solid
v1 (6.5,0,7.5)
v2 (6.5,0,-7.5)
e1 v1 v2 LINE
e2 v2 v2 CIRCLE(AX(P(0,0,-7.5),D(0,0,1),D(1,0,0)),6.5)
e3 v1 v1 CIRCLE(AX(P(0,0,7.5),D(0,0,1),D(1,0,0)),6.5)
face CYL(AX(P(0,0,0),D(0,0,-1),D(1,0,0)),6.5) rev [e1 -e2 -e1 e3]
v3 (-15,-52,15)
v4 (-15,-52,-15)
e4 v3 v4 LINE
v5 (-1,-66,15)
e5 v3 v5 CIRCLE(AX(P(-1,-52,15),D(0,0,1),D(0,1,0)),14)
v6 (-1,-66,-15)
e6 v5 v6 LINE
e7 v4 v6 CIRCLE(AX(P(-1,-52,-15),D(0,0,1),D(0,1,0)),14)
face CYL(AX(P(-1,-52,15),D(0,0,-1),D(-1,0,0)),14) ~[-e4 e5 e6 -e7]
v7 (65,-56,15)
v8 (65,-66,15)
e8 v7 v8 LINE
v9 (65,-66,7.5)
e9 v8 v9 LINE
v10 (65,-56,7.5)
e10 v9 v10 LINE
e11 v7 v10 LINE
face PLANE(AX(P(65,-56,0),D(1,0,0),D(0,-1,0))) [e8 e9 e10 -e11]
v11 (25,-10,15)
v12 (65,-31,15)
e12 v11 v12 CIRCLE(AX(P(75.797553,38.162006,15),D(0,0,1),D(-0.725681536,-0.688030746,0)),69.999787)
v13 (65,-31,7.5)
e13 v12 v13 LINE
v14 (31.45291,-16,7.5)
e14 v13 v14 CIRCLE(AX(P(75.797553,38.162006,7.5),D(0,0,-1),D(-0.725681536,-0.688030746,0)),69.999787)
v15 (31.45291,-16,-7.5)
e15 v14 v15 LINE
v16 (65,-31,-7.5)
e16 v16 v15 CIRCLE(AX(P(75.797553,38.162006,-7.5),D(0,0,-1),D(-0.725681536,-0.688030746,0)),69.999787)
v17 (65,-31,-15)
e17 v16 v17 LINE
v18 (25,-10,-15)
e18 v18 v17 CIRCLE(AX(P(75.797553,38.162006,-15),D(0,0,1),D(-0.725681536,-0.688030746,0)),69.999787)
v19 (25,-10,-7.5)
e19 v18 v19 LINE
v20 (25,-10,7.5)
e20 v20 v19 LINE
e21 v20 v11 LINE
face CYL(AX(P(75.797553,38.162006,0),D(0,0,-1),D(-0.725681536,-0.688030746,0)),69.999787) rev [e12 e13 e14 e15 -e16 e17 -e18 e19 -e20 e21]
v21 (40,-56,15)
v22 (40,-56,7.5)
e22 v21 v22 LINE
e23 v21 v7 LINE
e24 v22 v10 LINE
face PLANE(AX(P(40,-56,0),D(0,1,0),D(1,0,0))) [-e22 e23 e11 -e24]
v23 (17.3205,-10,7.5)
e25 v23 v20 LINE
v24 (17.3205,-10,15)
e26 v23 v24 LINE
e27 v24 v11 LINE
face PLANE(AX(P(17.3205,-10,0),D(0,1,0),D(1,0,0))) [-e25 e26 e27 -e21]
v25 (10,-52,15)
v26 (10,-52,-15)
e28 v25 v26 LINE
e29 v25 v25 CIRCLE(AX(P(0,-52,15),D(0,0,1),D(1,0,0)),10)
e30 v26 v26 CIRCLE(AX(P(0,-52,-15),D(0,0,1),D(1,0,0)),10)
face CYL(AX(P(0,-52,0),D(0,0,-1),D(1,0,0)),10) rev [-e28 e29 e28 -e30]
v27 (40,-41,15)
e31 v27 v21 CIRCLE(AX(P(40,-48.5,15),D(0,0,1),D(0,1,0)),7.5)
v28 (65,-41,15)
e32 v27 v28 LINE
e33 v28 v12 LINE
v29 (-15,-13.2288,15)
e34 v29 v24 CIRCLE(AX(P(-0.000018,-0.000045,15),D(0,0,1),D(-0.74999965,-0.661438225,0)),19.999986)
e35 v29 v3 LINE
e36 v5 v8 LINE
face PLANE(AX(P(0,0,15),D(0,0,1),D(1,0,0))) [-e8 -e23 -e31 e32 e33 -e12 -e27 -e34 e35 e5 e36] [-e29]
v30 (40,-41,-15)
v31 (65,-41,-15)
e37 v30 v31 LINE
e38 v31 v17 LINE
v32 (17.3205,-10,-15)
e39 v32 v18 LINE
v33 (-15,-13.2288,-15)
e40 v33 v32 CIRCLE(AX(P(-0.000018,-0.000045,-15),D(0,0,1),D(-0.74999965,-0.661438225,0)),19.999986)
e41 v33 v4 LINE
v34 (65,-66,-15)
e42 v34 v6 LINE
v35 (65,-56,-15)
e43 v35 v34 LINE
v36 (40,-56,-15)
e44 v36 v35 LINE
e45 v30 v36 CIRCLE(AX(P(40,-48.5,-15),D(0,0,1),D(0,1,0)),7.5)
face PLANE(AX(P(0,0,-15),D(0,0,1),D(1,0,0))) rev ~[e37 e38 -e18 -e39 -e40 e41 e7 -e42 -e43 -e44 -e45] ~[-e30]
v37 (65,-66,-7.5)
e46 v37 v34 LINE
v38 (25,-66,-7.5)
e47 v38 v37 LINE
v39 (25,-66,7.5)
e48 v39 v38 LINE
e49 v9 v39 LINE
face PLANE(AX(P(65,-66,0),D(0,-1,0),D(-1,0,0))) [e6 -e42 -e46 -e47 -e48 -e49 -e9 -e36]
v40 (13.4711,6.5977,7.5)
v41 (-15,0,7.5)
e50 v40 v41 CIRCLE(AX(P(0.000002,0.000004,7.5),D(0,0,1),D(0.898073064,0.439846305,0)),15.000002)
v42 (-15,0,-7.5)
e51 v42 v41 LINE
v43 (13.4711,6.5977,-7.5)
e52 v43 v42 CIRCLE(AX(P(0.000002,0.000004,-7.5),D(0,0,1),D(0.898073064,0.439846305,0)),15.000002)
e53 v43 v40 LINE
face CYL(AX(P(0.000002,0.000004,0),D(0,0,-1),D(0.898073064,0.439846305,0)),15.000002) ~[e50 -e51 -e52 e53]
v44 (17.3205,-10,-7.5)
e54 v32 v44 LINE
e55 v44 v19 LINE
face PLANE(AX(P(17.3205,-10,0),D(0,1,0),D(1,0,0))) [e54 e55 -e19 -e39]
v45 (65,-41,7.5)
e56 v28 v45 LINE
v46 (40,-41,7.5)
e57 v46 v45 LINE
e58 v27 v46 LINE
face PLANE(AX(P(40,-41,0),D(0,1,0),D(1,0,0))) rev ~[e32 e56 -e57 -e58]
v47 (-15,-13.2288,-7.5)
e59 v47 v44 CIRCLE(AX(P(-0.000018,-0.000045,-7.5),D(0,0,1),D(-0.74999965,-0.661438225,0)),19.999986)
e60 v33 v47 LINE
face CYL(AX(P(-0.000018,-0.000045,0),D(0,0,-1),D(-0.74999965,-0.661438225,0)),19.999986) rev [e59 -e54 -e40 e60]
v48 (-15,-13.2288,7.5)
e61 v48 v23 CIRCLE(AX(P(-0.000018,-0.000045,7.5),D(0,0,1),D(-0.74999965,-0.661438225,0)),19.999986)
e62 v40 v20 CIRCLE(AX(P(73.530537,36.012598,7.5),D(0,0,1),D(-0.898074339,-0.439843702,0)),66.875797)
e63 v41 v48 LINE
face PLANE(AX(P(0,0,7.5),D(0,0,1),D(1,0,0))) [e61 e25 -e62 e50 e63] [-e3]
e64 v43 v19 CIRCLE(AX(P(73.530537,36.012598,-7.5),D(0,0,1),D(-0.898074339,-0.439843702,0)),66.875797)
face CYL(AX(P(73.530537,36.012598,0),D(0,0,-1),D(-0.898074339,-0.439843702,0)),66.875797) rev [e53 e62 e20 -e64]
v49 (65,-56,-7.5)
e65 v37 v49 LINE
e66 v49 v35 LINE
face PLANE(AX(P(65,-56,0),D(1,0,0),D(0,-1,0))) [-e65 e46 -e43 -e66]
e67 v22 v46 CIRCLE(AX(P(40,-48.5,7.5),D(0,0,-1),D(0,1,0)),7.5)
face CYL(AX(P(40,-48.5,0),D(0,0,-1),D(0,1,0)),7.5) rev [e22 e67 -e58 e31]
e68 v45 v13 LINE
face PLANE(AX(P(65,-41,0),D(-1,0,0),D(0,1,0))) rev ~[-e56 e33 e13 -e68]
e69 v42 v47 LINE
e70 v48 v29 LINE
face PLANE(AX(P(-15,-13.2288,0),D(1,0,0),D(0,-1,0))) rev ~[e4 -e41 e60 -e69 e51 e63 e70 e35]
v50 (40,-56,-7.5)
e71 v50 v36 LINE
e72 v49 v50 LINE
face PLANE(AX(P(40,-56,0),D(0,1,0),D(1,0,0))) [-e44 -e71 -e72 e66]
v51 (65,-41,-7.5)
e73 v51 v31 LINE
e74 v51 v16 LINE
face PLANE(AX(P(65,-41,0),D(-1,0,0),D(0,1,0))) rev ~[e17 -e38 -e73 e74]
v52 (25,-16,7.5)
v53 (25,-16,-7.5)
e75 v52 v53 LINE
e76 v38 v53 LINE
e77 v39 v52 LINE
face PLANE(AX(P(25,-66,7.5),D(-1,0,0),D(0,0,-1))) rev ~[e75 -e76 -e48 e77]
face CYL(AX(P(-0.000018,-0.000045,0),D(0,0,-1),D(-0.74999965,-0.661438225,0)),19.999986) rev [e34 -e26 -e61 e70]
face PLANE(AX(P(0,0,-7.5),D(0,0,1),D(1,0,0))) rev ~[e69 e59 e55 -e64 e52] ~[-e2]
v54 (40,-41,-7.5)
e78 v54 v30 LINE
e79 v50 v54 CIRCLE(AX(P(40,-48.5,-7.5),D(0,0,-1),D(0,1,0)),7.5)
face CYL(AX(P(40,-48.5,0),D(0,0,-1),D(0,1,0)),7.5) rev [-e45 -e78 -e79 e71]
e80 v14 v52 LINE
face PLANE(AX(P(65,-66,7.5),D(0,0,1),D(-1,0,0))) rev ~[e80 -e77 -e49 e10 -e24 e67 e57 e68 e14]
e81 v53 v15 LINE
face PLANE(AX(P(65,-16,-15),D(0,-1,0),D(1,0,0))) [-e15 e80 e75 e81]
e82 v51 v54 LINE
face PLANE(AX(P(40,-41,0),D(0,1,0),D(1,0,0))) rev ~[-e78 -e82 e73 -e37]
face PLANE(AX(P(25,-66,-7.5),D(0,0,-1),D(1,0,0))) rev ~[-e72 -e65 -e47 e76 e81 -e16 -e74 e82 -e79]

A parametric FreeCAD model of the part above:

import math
import FreeCAD as App
import Part
import Sketcher


def edges_at(feature, points):
    """Names of the edges that pass closest to the given points."""
    edges = feature.Shape.Edges
    near = lambda p: min(range(len(edges)), key=lambda i: edges[i].distToShape(Part.Vertex(*p))[0])
    return sorted({f"Edge{near(p) + 1}" for p in points})

doc = App.newDocument("Part")
body = doc.addObject("PartDesign::Body", "Body")

sketch1 = doc.addObject("Sketcher::SketchObject", "Sketch")
body.addObject(sketch1)
sketch1.AttachmentSupport = (doc.XY_Plane, [""])
sketch1.MapMode = "FlatFace"
sketch1.addGeometry([
    Part.ArcOfCircle(Part.Circle(App.Vector(74, 36, 0), App.Vector(0, 0, 1), 67), math.radians(-153.91), math.radians(-136.53)),
    Part.ArcOfCircle(Part.Circle(App.Vector(0, 0, 0), App.Vector(0, 0, 1), 15), math.radians(26), math.radians(180)),
    Part.LineSegment(App.Vector(-15, 0, 0), App.Vector(-15, -13, 0)),
    Part.ArcOfCircle(Part.Circle(App.Vector(0, 0, 0), App.Vector(0, 0, 1), 20), math.radians(-139), math.radians(-30)),
    Part.LineSegment(App.Vector(17, -10, 0), App.Vector(25, -10, 0)),
    Part.Circle(App.Vector(0, 0, 0), App.Vector(0, 0, 1), 6),
], False)
sketch1.addConstraint([
    Sketcher.Constraint("Tangent", 0, 1, 1, 1),
    Sketcher.Constraint("Tangent", 1, 2, 2, 1),
    Sketcher.Constraint("Coincident", 2, 2, 3, 1),
    Sketcher.Constraint("Coincident", 3, 2, 4, 1),
    Sketcher.Constraint("Coincident", 4, 2, 0, 2),
    Sketcher.Constraint("Vertical", 2),
    Sketcher.Constraint("Horizontal", 4),
    Sketcher.Constraint("Coincident", 1, 3, -1, 1),
    Sketcher.Constraint("Coincident", 3, 3, -1, 1),
    Sketcher.Constraint("Coincident", 5, 3, -1, 1),
    Sketcher.Constraint("Diameter", 5, 13.0),
    Sketcher.Constraint("Radius", 1, 15.0),
    Sketcher.Constraint("Radius", 3, 20.0),
    Sketcher.Constraint("DistanceY", 3, 2, -1, 1, 10.0),
    Sketcher.Constraint("DistanceX", -1, 1, 4, 2, 25.0),
    Sketcher.Constraint("Radius", 0, 66.8754),
])
pad1 = doc.addObject("PartDesign::Pad", "Pad")
body.addObject(pad1)
pad1.Profile = sketch1
pad1.Length = 15
pad1.Midplane = True

sketch2 = doc.addObject("Sketcher::SketchObject", "Sketch001")
body.addObject(sketch2)
sketch2.AttachmentSupport = (doc.XY_Plane, [""])
sketch2.MapMode = "FlatFace"
sketch2.addGeometry([
    Part.ArcOfCircle(Part.Circle(App.Vector(76, 38, 0), App.Vector(0, 0, 1), 70), math.radians(-137), math.radians(-99)),
    Part.LineSegment(App.Vector(25, -10, 0), App.Vector(17, -10, 0)),
    Part.ArcOfCircle(Part.Circle(App.Vector(0, 0, 0), App.Vector(0, 0, 1), 20), math.radians(-139), math.radians(-30)),
    Part.LineSegment(App.Vector(-15, -13, 0), App.Vector(-15, -66, 0)),
    Part.LineSegment(App.Vector(-15, -66, 0), App.Vector(65, -66, 0)),
    Part.LineSegment(App.Vector(65, -66, 0), App.Vector(65, -56, 0)),
    Part.LineSegment(App.Vector(65, -56, 0), App.Vector(40, -56, 0)),
    Part.ArcOfCircle(Part.Circle(App.Vector(40, -48, 0), App.Vector(0, 0, 1), 8), math.radians(90), math.radians(270)),
    Part.LineSegment(App.Vector(40, -41, 0), App.Vector(65, -41, 0)),
    Part.LineSegment(App.Vector(65, -41, 0), App.Vector(65, -31, 0)),
    Part.Circle(App.Vector(0, -52, 0), App.Vector(0, 0, 1), 10),
], False)
sketch2.addConstraint([
    Sketcher.Constraint("Coincident", 0, 1, 1, 1),
    Sketcher.Constraint("Coincident", 1, 2, 2, 2),
    Sketcher.Constraint("Coincident", 2, 1, 3, 1),
    Sketcher.Constraint("Coincident", 3, 2, 4, 1),
    Sketcher.Constraint("Coincident", 4, 2, 5, 1),
    Sketcher.Constraint("Coincident", 5, 2, 6, 1),
    Sketcher.Constraint("Tangent", 6, 2, 7, 2),
    Sketcher.Constraint("Tangent", 7, 1, 8, 1),
    Sketcher.Constraint("Coincident", 8, 2, 9, 1),
    Sketcher.Constraint("Coincident", 9, 2, 0, 2),
    Sketcher.Constraint("Horizontal", 1),
    Sketcher.Constraint("Vertical", 3),
    Sketcher.Constraint("Horizontal", 4),
    Sketcher.Constraint("Vertical", 5),
    Sketcher.Constraint("Horizontal", 6),
    Sketcher.Constraint("Horizontal", 8),
    Sketcher.Constraint("Vertical", 9),
    Sketcher.Constraint("Coincident", 2, 3, -1, 1),
    Sketcher.Constraint("PointOnObject", 10, 3, -2),
    Sketcher.Constraint("Vertical", 5, 2, 8, 2),
    Sketcher.Constraint("Equal", 5, 9),
    Sketcher.Constraint("Diameter", 10, 20.0),
    Sketcher.Constraint("Radius", 0, 70.0),
    Sketcher.Constraint("Radius", 2, 20.0),
    Sketcher.Constraint("Radius", 7, 7.5),
    Sketcher.Constraint("DistanceX", 4, 1, 4, 2, 80.0),
    Sketcher.Constraint("DistanceX", 6, 2, 6, 1, 25.0),
    Sketcher.Constraint("DistanceY", 5, 1, 5, 2, 10.0),
    Sketcher.Constraint("DistanceX", -1, 1, 7, 3, 40.0),
    Sketcher.Constraint("DistanceY", 10, 3, -1, 1, 52.0),
    Sketcher.Constraint("DistanceX", -1, 1, 0, 1, 25.0),
    Sketcher.Constraint("DistanceY", 0, 1, -1, 1, 10.0),
    Sketcher.Constraint("DistanceY", 5, 2, -1, 1, 56.0),
])
pad2 = doc.addObject("PartDesign::Pad", "Pad001")
body.addObject(pad2)
pad2.Profile = sketch2
pad2.Length = 30
pad2.Midplane = True
doc.recompute()

fillet = doc.addObject("PartDesign::Fillet", "Fillet")
body.addObject(fillet)
fillet.Base = (pad2, edges_at(pad2, [(-15, -66, 0)]))
fillet.Radius = 14

sketch3 = doc.addObject("Sketcher::SketchObject", "Sketch002")
body.addObject(sketch3)
sketch3.AttachmentSupport = (doc.XZ_Plane, [""])
sketch3.MapMode = "FlatFace"
sketch3.AttachmentOffset = App.Placement(App.Vector(0, 0, 66), App.Rotation())
sketch3.addGeometry([
    Part.LineSegment(App.Vector(25, -8, 0), App.Vector(65, -8, 0)),
    Part.LineSegment(App.Vector(65, -8, 0), App.Vector(65, 8, 0)),
    Part.LineSegment(App.Vector(65, 8, 0), App.Vector(25, 8, 0)),
    Part.LineSegment(App.Vector(25, 8, 0), App.Vector(25, -8, 0)),
], False)
sketch3.addConstraint([
    Sketcher.Constraint("Coincident", 0, 2, 1, 1),
    Sketcher.Constraint("Coincident", 1, 2, 2, 1),
    Sketcher.Constraint("Coincident", 2, 2, 3, 1),
    Sketcher.Constraint("Coincident", 3, 2, 0, 1),
    Sketcher.Constraint("Horizontal", 0),
    Sketcher.Constraint("Vertical", 1),
    Sketcher.Constraint("Horizontal", 2),
    Sketcher.Constraint("Vertical", 3),
    Sketcher.Constraint("DistanceX", 0, 1, 0, 2, 40.0),
    Sketcher.Constraint("DistanceY", 1, 1, 1, 2, 15.0),
    Sketcher.Constraint("DistanceX", -1, 1, 0, 2, 65.0),
    Sketcher.Constraint("DistanceY", 0, 2, -1, 1, 7.5),
])
pocket1 = doc.addObject("PartDesign::Pocket", "Pocket")
body.addObject(pocket1)
pocket1.Profile = sketch3
pocket1.Length = 50

doc.recompute()
